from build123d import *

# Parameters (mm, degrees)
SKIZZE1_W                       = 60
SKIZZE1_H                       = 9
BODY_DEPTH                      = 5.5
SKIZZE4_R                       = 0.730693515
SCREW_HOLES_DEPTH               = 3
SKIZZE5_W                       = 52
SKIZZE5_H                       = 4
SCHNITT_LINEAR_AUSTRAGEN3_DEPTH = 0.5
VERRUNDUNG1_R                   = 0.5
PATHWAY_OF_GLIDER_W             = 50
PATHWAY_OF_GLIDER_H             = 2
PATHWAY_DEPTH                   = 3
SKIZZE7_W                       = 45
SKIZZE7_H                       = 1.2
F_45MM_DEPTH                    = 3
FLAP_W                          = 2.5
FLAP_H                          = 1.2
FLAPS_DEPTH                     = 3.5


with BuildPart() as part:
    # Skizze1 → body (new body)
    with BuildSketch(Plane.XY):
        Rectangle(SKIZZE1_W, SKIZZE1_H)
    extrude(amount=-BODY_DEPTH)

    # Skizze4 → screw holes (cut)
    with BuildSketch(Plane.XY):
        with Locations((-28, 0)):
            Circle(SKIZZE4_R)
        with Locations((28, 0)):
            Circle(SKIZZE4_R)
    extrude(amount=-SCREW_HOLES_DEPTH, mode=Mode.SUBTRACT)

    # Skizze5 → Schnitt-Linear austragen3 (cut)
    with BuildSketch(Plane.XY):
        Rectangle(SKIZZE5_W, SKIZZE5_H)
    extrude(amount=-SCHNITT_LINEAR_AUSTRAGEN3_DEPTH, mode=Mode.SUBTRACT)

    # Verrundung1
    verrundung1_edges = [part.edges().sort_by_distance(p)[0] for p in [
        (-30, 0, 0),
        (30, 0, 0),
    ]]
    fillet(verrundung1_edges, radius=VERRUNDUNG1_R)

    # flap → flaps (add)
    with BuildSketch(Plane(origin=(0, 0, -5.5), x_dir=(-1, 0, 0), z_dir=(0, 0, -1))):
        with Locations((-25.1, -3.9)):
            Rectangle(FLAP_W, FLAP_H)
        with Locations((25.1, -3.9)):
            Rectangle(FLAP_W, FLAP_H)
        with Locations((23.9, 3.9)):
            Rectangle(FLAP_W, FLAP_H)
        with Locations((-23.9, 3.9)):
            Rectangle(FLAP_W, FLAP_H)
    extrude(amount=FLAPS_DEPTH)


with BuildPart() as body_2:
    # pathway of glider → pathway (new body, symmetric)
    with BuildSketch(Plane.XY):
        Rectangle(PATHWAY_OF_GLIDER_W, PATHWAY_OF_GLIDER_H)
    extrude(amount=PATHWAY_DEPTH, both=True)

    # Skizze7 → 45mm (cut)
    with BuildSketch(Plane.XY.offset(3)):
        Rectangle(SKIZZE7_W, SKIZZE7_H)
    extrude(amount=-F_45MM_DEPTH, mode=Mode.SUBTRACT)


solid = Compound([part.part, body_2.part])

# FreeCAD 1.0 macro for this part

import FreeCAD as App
import Part
import Sketcher

V = App.Vector
Q = App.Units.Quantity


def edges_at(feature, points):
    """Names of the edges that pass closest to the given points."""
    edges = feature.Shape.Edges
    near = lambda p: min(range(len(edges)), key=lambda i: edges[i].distToShape(Part.Vertex(*p))[0])
    return sorted({f"Edge{near(p) + 1}" for p in points})


def add_polygon(sketch, points):
    """Adds a closed chain of lines whose ends are joined by coincident constraints."""
    first, n = sketch.GeometryCount, len(points)
    for a, b in zip(points, points[1:] + points[:1]):
        sketch.addGeometry(Part.LineSegment(App.Vector(*a, 0), App.Vector(*b, 0)), False)
    for i in range(n):
        sketch.addConstraint(Sketcher.Constraint("Coincident", first + i, 2, first + (i + 1) % n, 1))

doc = App.newDocument("Part")
body = doc.addObject("PartDesign::Body", "Body")

# Sketch on XY plane
sketch1 = body.newObject("Sketcher::SketchObject", "Sketch")
sketch1.AttachmentSupport = (doc.getObject("XY_Plane"), [""])
sketch1.MapMode = "FlatFace"
add_polygon(sketch1, [(-30, 4), (-30, -4), (30, -4), (30, 4)])  # lines 0-3
sketch1.addConstraint([
    Sketcher.Constraint("Vertical", 0),
    Sketcher.Constraint("Horizontal", 1),
    Sketcher.Constraint("Vertical", 2),
    Sketcher.Constraint("Horizontal", 3),
    Sketcher.Constraint("Symmetric", 0, 2, 2, 2, -1, 1),
    Sketcher.Constraint("DistanceX", 1, 1, 1, 2, Q("60 mm")),
    Sketcher.Constraint("DistanceY", 0, 2, 0, 1, Q("9 mm")),
])
pad1 = body.newObject("PartDesign::Pad", "Pad")
pad1.Profile = sketch1
pad1.Length = 5.5
pad1.Reversed = True

# Sketch on XY plane
sketch2 = body.newObject("Sketcher::SketchObject", "Sketch001")
sketch2.AttachmentSupport = (doc.getObject("XY_Plane"), [""])
sketch2.MapMode = "FlatFace"
sketch2.addGeometry([
    Part.Circle(V(-28, 0, 0), V(0, 0, 1), 0.7),
    Part.Circle(V(28, 0, 0), V(0, 0, 1), 0.7),
], False)
sketch2.addConstraint([
    Sketcher.Constraint("Equal", 0, 1),
    Sketcher.Constraint("Symmetric", 0, 3, 1, 3, -1, 1),
    Sketcher.Constraint("PointOnObject", 0, 3, -1),
    Sketcher.Constraint("DistanceX", 0, 3, -1, 1, Q("28 mm")),
    Sketcher.Constraint("Diameter", 0, Q("1.461387 mm")),
])
pocket1 = body.newObject("PartDesign::Pocket", "Pocket")
pocket1.Profile = sketch2
pocket1.Length = 3

# Sketch on XY plane
sketch3 = body.newObject("Sketcher::SketchObject", "Sketch002")
sketch3.AttachmentSupport = (doc.getObject("XY_Plane"), [""])
sketch3.MapMode = "FlatFace"
add_polygon(sketch3, [(-26, 2), (-26, -2), (26, -2), (26, 2)])  # lines 0-3
sketch3.addConstraint([
    Sketcher.Constraint("Vertical", 0),
    Sketcher.Constraint("Horizontal", 1),
    Sketcher.Constraint("Vertical", 2),
    Sketcher.Constraint("Horizontal", 3),
    Sketcher.Constraint("Symmetric", 0, 2, 2, 2, -1, 1),
    Sketcher.Constraint("DistanceX", 1, 1, 1, 2, Q("52 mm")),
    Sketcher.Constraint("DistanceY", 0, 2, 0, 1, Q("4 mm")),
])
pocket2 = body.newObject("PartDesign::Pocket", "Pocket001")
pocket2.Profile = sketch3
pocket2.Length = 0.5
doc.recompute()

fillet = body.newObject("PartDesign::Fillet", "Fillet")
fillet.Base = (pocket2, edges_at(pocket2, [(-30, 0, 0), (30, 0, 0)]))
fillet.Radius = 0.5

# Sketch on XY plane
sketch4 = body.newObject("Sketcher::SketchObject", "Sketch003")
sketch4.AttachmentSupport = (doc.getObject("XY_Plane"), [""])
sketch4.MapMode = "FlatFace"
sketch4.AttachmentOffset = App.Placement(V(0, 0, -5.5), App.Rotation())
add_polygon(sketch4, [(26.4, -3.3), (26.4, -4.5), (23.9, -4.5), (23.9, -3.3)])  # lines 0-3
add_polygon(sketch4, [(-23.9, -3.3), (-23.9, -4.5), (-26.4, -4.5), (-26.4, -3.3)])  # lines 4-7
add_polygon(sketch4, [(-22.6, 4.5), (-22.6, 3.3), (-25.1, 3.3), (-25.1, 4.5)])  # lines 8-11
add_polygon(sketch4, [(25.1, 4.5), (25.1, 3.3), (22.6, 3.3), (22.6, 4.5)])  # lines 12-15
sketch4.addConstraint([
    Sketcher.Constraint("Vertical", 0),
    Sketcher.Constraint("Horizontal", 1),
    Sketcher.Constraint("Vertical", 2),
    Sketcher.Constraint("Horizontal", 3),
    Sketcher.Constraint("Vertical", 4),
    Sketcher.Constraint("Horizontal", 5),
    Sketcher.Constraint("Vertical", 6),
    Sketcher.Constraint("Horizontal", 7),
    Sketcher.Constraint("Vertical", 8),
    Sketcher.Constraint("Horizontal", 9),
    Sketcher.Constraint("Vertical", 10),
    Sketcher.Constraint("Horizontal", 11),
    Sketcher.Constraint("Vertical", 12),
    Sketcher.Constraint("Horizontal", 13),
    Sketcher.Constraint("Vertical", 14),
    Sketcher.Constraint("Horizontal", 15),
    Sketcher.Constraint("Symmetric", 1, 2, 4, 2, -2),
    Sketcher.Constraint("Symmetric", 3, 2, 6, 2, -2),
    Sketcher.Constraint("Symmetric", 9, 2, 12, 2, -2),
    Sketcher.Constraint("Symmetric", 11, 2, 14, 2, -2),
    Sketcher.Constraint("Equal", 7, 9),
    Sketcher.Constraint("Equal", 6, 8),
    Sketcher.Constraint("DistanceX", 1, 2, 1, 1, Q("2.5 mm")),
    Sketcher.Constraint("DistanceY", 0, 2, 0, 1, Q("1.2 mm")),
    Sketcher.Constraint("DistanceY", 5, 2, 10, 2, Q("9 mm")),
    Sketcher.Constraint("DistanceY", 0, 2, -1, 1, Q("4.5 mm")),
    Sketcher.Constraint("DistanceX", 4, 2, 1, 2, Q("47.7 mm")),
    Sketcher.Constraint("DistanceX", 7, 2, 8, 2, Q("1.2 mm")),
])
pad2 = body.newObject("PartDesign::Pad", "Pad001")
pad2.Profile = sketch4
pad2.Length = 3.5
pad2.Reversed = True
body2 = doc.addObject("PartDesign::Body", "Body001")

# Sketch on XY plane
sketch5 = body2.newObject("Sketcher::SketchObject", "Sketch004")
sketch5.AttachmentSupport = (doc.getObject("XY_Plane001"), [""])
sketch5.MapMode = "FlatFace"
add_polygon(sketch5, [(-25, 1), (-25, -1), (25, -1), (25, 1)])  # lines 0-3
sketch5.addConstraint([
    Sketcher.Constraint("Vertical", 0),
    Sketcher.Constraint("Horizontal", 1),
    Sketcher.Constraint("Vertical", 2),
    Sketcher.Constraint("Horizontal", 3),
    Sketcher.Constraint("Symmetric", 0, 2, 2, 2, -1, 1),
    Sketcher.Constraint("DistanceX", 1, 1, 1, 2, Q("50 mm")),
    Sketcher.Constraint("DistanceY", 0, 2, 0, 1, Q("2 mm")),
])
pad3 = body2.newObject("PartDesign::Pad", "Pad002")
pad3.Profile = sketch5
pad3.Length = 6
pad3.Midplane = True

# Sketch on XY plane
sketch6 = body2.newObject("Sketcher::SketchObject", "Sketch005")
sketch6.AttachmentSupport = (doc.getObject("XY_Plane001"), [""])
sketch6.MapMode = "FlatFace"
sketch6.AttachmentOffset = App.Placement(V(0, 0, 3), App.Rotation())
add_polygon(sketch6, [(-22.5, 0.6), (-22.5, -0.6), (22.5, -0.6), (22.5, 0.6)])  # lines 0-3
sketch6.addConstraint([
    Sketcher.Constraint("Vertical", 0),
    Sketcher.Constraint("Horizontal", 1),
    Sketcher.Constraint("Vertical", 2),
    Sketcher.Constraint("Horizontal", 3),
    Sketcher.Constraint("Symmetric", 0, 2, 2, 2, -1, 1),
    Sketcher.Constraint("DistanceX", 1, 1, 1, 2, Q("45 mm")),
    Sketcher.Constraint("DistanceY", 0, 2, 0, 1, Q("1.2 mm")),
])
pocket3 = body2.newObject("PartDesign::Pocket", "Pocket002")
pocket3.Profile = sketch6
pocket3.Length = 3

doc.recompute()
